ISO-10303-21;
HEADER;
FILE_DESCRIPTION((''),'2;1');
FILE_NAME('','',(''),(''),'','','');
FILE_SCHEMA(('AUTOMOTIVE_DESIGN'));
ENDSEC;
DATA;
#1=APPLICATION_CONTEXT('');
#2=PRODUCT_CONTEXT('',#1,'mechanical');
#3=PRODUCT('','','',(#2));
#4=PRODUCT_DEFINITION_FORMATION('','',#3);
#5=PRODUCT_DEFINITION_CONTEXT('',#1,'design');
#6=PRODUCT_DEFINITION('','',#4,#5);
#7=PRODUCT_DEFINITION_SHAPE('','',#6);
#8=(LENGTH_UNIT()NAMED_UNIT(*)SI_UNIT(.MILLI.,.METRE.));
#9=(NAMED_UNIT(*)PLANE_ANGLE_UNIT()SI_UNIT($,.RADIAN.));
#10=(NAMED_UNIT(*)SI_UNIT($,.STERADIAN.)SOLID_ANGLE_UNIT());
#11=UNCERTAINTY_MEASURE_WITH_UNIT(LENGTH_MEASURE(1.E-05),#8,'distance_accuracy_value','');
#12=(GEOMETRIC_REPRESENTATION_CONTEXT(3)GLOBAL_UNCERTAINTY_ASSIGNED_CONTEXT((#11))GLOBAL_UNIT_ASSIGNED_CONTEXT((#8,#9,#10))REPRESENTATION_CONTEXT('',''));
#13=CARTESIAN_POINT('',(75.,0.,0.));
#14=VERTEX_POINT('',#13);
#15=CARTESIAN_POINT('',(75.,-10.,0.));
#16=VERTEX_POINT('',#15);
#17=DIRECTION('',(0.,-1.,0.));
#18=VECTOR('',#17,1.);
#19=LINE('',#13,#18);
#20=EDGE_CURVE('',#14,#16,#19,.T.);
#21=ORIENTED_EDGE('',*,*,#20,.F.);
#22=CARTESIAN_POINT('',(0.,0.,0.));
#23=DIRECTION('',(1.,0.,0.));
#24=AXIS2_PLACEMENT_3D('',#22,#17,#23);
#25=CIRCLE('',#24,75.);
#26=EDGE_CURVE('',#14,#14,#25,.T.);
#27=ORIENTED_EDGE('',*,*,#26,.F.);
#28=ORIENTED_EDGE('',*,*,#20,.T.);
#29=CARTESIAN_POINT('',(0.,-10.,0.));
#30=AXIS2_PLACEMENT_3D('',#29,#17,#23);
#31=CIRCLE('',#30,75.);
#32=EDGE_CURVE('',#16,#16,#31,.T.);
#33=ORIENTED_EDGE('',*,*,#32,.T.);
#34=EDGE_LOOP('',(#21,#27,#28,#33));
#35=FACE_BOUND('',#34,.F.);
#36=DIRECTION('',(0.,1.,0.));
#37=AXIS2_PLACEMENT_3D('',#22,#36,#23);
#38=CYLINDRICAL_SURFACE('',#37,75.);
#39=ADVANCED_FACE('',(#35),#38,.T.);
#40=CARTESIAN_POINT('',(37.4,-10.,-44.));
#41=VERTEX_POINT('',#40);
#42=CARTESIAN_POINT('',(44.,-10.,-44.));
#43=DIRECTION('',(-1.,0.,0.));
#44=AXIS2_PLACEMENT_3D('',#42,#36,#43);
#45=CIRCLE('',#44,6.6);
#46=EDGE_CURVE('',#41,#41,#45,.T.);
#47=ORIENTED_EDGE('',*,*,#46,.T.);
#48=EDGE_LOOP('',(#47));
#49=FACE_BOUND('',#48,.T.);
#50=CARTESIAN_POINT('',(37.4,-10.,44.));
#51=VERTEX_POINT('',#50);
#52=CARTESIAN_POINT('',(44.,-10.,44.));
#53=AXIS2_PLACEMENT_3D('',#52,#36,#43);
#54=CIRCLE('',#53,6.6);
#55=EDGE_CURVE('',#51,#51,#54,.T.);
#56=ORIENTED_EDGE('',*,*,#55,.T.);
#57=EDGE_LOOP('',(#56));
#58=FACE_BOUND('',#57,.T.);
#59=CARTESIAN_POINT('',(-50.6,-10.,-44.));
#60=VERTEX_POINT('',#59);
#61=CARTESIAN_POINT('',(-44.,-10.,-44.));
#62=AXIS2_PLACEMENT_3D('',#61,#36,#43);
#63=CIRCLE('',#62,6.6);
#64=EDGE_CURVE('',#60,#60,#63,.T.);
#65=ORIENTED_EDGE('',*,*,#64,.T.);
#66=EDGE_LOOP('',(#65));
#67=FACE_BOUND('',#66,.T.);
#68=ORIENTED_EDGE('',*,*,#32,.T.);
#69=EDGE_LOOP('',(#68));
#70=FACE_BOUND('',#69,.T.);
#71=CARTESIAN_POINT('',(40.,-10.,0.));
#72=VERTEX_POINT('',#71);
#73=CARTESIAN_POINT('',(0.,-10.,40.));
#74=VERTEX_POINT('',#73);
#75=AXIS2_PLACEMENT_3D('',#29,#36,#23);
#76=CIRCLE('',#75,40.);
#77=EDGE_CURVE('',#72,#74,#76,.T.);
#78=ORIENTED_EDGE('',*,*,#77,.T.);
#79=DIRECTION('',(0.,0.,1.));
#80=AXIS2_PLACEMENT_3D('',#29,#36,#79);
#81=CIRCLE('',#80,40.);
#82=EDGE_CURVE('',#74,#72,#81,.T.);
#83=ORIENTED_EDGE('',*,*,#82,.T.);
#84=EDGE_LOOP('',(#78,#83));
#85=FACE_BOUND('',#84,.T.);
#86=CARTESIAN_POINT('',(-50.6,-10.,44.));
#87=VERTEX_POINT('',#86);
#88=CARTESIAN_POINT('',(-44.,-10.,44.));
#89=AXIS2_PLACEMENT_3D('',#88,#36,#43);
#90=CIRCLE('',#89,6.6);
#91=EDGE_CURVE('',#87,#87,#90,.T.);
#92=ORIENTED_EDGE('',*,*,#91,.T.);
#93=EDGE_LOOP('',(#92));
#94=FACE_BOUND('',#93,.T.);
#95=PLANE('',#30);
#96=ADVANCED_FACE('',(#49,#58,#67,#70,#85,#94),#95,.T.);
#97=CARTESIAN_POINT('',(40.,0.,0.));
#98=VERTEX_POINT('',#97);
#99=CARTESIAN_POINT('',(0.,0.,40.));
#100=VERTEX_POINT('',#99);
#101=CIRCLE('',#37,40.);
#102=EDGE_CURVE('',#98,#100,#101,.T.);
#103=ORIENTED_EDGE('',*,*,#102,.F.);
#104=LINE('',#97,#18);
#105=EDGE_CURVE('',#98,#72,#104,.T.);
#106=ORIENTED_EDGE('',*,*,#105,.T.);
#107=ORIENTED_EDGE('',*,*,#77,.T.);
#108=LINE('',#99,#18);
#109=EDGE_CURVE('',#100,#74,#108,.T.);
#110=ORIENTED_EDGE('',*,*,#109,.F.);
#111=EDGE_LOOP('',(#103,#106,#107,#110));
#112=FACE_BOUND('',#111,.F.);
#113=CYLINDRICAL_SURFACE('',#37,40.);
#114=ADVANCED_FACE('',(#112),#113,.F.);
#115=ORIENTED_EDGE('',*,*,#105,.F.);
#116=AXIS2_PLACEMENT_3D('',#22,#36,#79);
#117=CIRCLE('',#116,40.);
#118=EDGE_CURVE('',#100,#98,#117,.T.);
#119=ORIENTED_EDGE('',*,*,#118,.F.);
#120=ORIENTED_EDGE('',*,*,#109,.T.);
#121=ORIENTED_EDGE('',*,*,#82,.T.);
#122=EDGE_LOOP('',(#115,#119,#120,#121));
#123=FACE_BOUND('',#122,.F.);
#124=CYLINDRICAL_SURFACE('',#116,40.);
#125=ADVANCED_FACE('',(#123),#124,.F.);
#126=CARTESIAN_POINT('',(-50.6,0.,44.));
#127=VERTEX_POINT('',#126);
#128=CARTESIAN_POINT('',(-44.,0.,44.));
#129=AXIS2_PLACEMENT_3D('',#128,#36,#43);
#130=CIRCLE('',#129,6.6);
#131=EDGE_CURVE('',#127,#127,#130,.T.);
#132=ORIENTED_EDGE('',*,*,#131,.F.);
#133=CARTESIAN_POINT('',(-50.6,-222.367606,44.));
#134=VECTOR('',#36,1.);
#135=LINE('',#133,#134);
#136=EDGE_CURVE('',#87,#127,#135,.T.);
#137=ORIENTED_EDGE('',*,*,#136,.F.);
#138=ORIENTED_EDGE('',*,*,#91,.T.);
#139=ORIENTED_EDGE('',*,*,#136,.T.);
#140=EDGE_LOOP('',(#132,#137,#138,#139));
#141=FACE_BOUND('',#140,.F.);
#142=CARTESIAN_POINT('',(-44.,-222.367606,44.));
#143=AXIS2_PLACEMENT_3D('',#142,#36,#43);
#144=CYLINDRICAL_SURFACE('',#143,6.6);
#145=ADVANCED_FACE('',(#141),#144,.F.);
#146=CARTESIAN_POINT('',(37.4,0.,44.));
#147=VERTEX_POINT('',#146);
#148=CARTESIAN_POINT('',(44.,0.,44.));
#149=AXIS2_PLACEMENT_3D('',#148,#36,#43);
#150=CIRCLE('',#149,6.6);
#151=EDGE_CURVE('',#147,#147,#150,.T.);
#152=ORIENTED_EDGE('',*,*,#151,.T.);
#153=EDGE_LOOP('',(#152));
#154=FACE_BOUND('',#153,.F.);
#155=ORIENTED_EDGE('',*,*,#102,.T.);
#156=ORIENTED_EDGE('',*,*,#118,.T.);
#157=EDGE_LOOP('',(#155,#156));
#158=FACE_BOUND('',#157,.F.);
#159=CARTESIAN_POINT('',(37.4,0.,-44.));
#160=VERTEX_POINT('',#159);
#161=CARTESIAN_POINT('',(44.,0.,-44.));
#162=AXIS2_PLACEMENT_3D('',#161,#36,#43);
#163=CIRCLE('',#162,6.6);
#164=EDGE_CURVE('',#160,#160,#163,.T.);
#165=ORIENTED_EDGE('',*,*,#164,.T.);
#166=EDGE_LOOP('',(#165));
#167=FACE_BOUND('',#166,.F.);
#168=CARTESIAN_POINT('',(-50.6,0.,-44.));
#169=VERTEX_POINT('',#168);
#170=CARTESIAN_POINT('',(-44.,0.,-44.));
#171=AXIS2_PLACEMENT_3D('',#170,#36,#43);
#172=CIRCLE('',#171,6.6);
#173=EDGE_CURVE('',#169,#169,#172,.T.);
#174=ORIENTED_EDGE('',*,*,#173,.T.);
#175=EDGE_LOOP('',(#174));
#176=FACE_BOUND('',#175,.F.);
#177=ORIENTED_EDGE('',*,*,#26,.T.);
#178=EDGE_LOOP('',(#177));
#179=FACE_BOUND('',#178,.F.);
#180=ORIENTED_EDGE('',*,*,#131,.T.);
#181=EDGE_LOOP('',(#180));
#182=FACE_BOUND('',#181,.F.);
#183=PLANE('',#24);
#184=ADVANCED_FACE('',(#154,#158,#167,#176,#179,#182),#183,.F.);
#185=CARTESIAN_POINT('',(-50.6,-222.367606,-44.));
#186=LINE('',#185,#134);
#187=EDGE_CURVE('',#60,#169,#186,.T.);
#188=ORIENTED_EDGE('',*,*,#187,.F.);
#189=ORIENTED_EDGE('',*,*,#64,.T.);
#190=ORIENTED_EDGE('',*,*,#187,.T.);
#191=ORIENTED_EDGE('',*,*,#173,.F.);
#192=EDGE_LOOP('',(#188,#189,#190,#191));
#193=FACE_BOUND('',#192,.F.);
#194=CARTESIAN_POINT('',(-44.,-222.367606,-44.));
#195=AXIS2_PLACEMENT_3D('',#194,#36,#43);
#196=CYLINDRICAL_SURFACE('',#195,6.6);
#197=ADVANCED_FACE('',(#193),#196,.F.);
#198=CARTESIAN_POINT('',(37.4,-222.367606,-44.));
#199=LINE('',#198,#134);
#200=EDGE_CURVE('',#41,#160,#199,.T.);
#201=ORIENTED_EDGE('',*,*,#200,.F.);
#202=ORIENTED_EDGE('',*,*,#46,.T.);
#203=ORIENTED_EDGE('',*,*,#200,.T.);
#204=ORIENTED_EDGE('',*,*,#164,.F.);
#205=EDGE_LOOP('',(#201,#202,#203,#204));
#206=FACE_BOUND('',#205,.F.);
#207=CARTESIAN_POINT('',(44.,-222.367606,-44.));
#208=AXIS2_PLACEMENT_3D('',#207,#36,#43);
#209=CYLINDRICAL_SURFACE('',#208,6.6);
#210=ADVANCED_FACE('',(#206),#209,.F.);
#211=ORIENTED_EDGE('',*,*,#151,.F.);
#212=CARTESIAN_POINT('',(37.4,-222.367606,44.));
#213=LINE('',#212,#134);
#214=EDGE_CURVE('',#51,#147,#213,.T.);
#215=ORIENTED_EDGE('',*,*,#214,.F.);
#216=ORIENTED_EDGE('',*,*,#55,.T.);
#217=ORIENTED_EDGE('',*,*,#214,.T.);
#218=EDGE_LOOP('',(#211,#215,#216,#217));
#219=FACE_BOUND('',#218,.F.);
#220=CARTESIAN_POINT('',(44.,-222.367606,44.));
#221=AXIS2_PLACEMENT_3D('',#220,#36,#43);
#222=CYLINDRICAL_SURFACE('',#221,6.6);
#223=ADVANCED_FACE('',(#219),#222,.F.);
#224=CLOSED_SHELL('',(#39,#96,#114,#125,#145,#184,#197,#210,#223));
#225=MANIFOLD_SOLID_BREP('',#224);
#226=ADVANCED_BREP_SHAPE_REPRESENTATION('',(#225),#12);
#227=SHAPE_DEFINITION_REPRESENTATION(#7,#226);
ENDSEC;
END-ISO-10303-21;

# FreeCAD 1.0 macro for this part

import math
import FreeCAD as App
import Part
import Sketcher
from FreeCAD import Vector
Q = App.Units.Quantity

doc = App.newDocument("Part")
body = doc.addObject("PartDesign::Body", "Body")

sketch1 = body.newObject("Sketcher::SketchObject", "Sketch")
sketch1.AttachmentSupport = (doc.getObject("XZ_Plane"), [""])
sketch1.MapMode = "FlatFace"
sketch1.addGeometry([
    Part.Circle(Vector(0, 0, 0), Vector(0, 0, 1), 75),
    Part.ArcOfCircle(Part.Circle(Vector(0, 0, 0), Vector(0, 0, 1), 40), math.radians(90), math.radians(360)),
    Part.ArcOfCircle(Part.Circle(Vector(0, 0, 0), Vector(0, 0, 1), 40), math.radians(0), math.radians(90)),
], False)
sketch1.addConstraint([
    Sketcher.Constraint("Tangent", 1, 1, 2, 2),
    Sketcher.Constraint("Coincident", 2, 1, 1, 2),
    Sketcher.Constraint("Coincident", 0, 3, -1, 1),
    Sketcher.Constraint("Coincident", 1, 3, -1, 1),
    Sketcher.Constraint("PointOnObject", 1, 1, -2),
    Sketcher.Constraint("PointOnObject", 2, 1, -1),
    Sketcher.Constraint("Diameter", 0, Q("150 mm")),
    Sketcher.Constraint("Radius", 1, Q("40 mm")),
])
pad1 = body.newObject("PartDesign::Pad", "Pad")
pad1.Profile = sketch1
pad1.Length = 10

sketch2 = body.newObject("Sketcher::SketchObject", "Sketch001")
sketch2.AttachmentSupport = (doc.getObject("XZ_Plane"), [""])
sketch2.MapMode = "FlatFace"
sketch2.AttachmentOffset = App.Placement(Vector(0, 0, 10), App.Rotation())
sketch2.addGeometry([
    Part.Circle(Vector(-44, 44, 0), Vector(0, 0, 1), 7),
    Part.Circle(Vector(-44, -44, 0), Vector(0, 0, 1), 7),
    Part.Circle(Vector(44, -44, 0), Vector(0, 0, 1), 7),
    Part.Circle(Vector(44, 44, 0), Vector(0, 0, 1), 7),
], False)
sketch2.addConstraint([
    Sketcher.Constraint("Equal", 0, 1),
    Sketcher.Constraint("Equal", 1, 2),
    Sketcher.Constraint("Equal", 2, 3),
    Sketcher.Constraint("Symmetric", 0, 3, 2, 3, -1, 1),
    Sketcher.Constraint("Symmetric", 1, 3, 3, 3, -1, 1),
    Sketcher.Constraint("Symmetric", 1, 3, 2, 3, -2),
    Sketcher.Constraint("Diameter", 0, Q("13.2 mm")),
    Sketcher.Constraint("DistanceX", 0, 3, -1, 1, Q("44 mm")),
    Sketcher.Constraint("DistanceY", -1, 1, 0, 3, Q("44 mm")),
])
doc.recompute()
hole = body.newObject("PartDesign::Hole", "Hole")
hole.Profile = sketch2
hole.ThreadType = "None"
hole.Diameter = 13.2
hole.DepthType = "ThroughAll"

doc.recompute()
